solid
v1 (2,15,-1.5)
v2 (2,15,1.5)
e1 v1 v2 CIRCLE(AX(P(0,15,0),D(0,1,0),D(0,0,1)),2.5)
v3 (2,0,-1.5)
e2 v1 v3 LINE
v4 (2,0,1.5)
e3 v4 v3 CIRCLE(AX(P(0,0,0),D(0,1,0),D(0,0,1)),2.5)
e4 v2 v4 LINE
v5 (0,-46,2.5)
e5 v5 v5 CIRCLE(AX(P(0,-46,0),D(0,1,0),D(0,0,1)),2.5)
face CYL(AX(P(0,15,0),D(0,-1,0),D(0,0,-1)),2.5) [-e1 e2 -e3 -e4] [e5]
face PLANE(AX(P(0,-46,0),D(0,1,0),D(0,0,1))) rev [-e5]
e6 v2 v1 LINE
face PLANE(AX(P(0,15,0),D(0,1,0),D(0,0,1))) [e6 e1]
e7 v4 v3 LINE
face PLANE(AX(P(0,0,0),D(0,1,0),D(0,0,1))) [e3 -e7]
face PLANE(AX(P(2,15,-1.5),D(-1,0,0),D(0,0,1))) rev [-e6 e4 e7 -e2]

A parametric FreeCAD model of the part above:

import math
import FreeCAD as App
import Part
import Sketcher

V = App.Vector
Q = App.Units.Quantity

doc = App.newDocument("Part")
params = doc.addObject("Spreadsheet::Sheet", "Params")
for row, (alias, value) in enumerate([
    ("sketch1_radius", "2.5 mm"),
    ("sketch1_height", "3 mm"),
    ("pad1_length", "15 mm"),
    ("sketch2_diameter", "5 mm"),
    ("pad2_length", "46 mm"),
], start=1):
    params.set(f"A{row}", alias)
    params.set(f"B{row}", "=" + value)
    params.setAlias(f"B{row}", alias)

body = doc.addObject("PartDesign::Body", "Body")

sketch1 = body.newObject("Sketcher::SketchObject", "Sketch")
sketch1.AttachmentSupport = (doc.getObject("XZ_Plane"), [""])
sketch1.MapMode = "FlatFace"
sketch1.addGeometry(Part.LineSegment(V(2, 1.5, 0), V(2, -1.5, 0)), False)
sketch1.addGeometry(Part.ArcOfCircle(Part.Circle(V(0, 0, 0), V(0, 0, 1), 2.5), math.radians(37), math.radians(323)), False)
sketch1.addConstraint(Sketcher.Constraint("Coincident", 0, 1, 1, 1))
sketch1.addConstraint(Sketcher.Constraint("Coincident", 1, 2, 0, 2))
sketch1.addConstraint(Sketcher.Constraint("Vertical", 0))
sketch1.addConstraint(Sketcher.Constraint("Coincident", 1, 3, -1, 1))
sketch1.addConstraint(Sketcher.Constraint("Radius", 1, Q("2.5 mm")))
sketch1.addConstraint(Sketcher.Constraint("DistanceY", 0, 2, 0, 1, Q("3 mm")))
sketch1.setExpression("Constraints[4]", "Params.sketch1_radius")
sketch1.setExpression("Constraints[5]", "Params.sketch1_height")
pad1 = body.newObject("PartDesign::Pad", "Pad")
pad1.Profile = sketch1
pad1.setExpression("Length", "Params.pad1_length")
pad1.Reversed = True

sketch2 = body.newObject("Sketcher::SketchObject", "Sketch001")
sketch2.AttachmentSupport = (doc.getObject("XZ_Plane"), [""])
sketch2.MapMode = "FlatFace"
sketch2.addGeometry(Part.Circle(V(0, 0, 0), V(0, 0, 1), 2.5), False)
sketch2.addConstraint(Sketcher.Constraint("Coincident", 0, 3, -1, 1))
sketch2.addConstraint(Sketcher.Constraint("Diameter", 0, Q("5 mm")))
sketch2.setExpression("Constraints[1]", "Params.sketch2_diameter")
pad2 = body.newObject("PartDesign::Pad", "Pad001")
pad2.Profile = sketch2
pad2.setExpression("Length", "Params.pad2_length")

doc.recompute()
